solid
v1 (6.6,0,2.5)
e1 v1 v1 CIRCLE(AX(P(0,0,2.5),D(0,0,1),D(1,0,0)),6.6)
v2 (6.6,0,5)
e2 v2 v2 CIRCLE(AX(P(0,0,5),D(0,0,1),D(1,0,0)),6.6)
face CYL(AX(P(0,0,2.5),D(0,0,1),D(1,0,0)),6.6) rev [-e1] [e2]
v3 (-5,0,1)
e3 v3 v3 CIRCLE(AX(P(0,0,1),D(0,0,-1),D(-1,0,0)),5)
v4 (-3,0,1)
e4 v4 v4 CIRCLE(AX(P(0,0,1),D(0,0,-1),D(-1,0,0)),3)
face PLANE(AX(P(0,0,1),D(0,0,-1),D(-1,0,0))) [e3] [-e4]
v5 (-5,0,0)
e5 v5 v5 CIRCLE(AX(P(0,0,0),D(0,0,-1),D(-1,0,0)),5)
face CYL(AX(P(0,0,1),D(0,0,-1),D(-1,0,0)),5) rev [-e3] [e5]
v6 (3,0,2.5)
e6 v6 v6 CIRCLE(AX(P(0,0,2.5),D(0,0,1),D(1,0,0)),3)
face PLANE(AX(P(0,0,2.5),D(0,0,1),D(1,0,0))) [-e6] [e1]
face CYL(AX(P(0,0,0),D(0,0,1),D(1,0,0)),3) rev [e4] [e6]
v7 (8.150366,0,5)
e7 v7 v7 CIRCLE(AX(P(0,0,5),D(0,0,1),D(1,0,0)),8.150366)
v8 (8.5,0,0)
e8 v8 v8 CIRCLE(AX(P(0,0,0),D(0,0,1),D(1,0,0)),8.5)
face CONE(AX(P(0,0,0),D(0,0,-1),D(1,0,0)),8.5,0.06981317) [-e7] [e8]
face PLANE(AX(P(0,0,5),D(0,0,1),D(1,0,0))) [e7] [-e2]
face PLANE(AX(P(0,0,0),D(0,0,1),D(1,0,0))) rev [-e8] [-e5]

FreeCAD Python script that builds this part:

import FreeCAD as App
import Part
import Sketcher

V = App.Vector

doc = App.newDocument("Part")
body = doc.addObject("PartDesign::Body", "Body")

# Sketch on XY plane
sketch1 = doc.addObject("Sketcher::SketchObject", "Sketch")
body.addObject(sketch1)
sketch1.AttachmentSupport = (doc.XY_Plane, [""])
sketch1.MapMode = "FlatFace"
sketch1.addGeometry(Part.Circle(V(0, 0, 0), V(0, 0, 1), 8.5), False)
sketch1.addConstraint([
    Sketcher.Constraint("Coincident", 0, 3, -1, 1),
    Sketcher.Constraint("Diameter", 0, 17.0),
])
pad1 = doc.addObject("PartDesign::Pad", "Pad")
body.addObject(pad1)
pad1.Profile = sketch1
pad1.Length = 5
pad1.TaperAngle = -4

# Sketch on XY plane
sketch2 = doc.addObject("Sketcher::SketchObject", "Sketch001")
body.addObject(sketch2)
sketch2.AttachmentSupport = (doc.XY_Plane, [""])
sketch2.MapMode = "FlatFace"
sketch2.addGeometry(Part.Circle(V(0, 0, 0), V(0, 0, 1), 5), False)
sketch2.addConstraint([
    Sketcher.Constraint("Coincident", 0, 3, -1, 1),
    Sketcher.Constraint("Diameter", 0, 10.0),
])
pocket1 = doc.addObject("PartDesign::Pocket", "Pocket")
body.addObject(pocket1)
pocket1.Profile = sketch2
pocket1.Length = 1
pocket1.Reversed = True

# Sketch on XY plane
sketch3 = doc.addObject("Sketcher::SketchObject", "Sketch002")
body.addObject(sketch3)
sketch3.AttachmentSupport = (doc.XY_Plane, [""])
sketch3.MapMode = "FlatFace"
sketch3.AttachmentOffset = App.Placement(V(0, 0, 5), App.Rotation())
sketch3.addGeometry(Part.Circle(V(0, 0, 0), V(0, 0, 1), 6.6), False)
sketch3.addConstraint([
    Sketcher.Constraint("Coincident", 0, 3, -1, 1),
    Sketcher.Constraint("Diameter", 0, 13.2),
])
pocket2 = doc.addObject("PartDesign::Pocket", "Pocket001")
body.addObject(pocket2)
pocket2.Profile = sketch3
pocket2.Length = 2.5

# Sketch on XY plane
sketch4 = doc.addObject("Sketcher::SketchObject", "Sketch003")
body.addObject(sketch4)
sketch4.AttachmentSupport = (doc.XY_Plane, [""])
sketch4.MapMode = "FlatFace"
sketch4.AttachmentOffset = App.Placement(V(0, 0, 2.5), App.Rotation())
sketch4.addGeometry(Part.Circle(V(0, 0, 0), V(0, 0, 1), 3), False)
sketch4.addConstraint([
    Sketcher.Constraint("Coincident", 0, 3, -1, 1),
    Sketcher.Constraint("Diameter", 0, 6.0),
])
pocket3 = doc.addObject("PartDesign::Pocket", "Pocket002")
body.addObject(pocket3)
pocket3.Profile = sketch4
pocket3.Type = "ThroughAll"
pocket3.Midplane = True

doc.recompute()
